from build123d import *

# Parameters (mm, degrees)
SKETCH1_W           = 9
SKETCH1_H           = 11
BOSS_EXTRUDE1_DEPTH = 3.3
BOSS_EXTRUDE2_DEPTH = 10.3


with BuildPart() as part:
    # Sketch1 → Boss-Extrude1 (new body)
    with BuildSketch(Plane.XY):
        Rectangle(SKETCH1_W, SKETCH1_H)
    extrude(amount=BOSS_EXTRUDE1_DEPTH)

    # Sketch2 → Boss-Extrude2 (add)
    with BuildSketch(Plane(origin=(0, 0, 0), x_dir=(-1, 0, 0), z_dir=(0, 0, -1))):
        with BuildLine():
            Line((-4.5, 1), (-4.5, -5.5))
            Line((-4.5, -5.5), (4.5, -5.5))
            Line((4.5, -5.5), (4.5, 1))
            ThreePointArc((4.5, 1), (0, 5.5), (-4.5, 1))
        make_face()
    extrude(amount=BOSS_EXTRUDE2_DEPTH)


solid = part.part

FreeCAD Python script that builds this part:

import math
import FreeCAD as App
import Part
import Sketcher

doc = App.newDocument("Part")
body = doc.addObject("PartDesign::Body", "Body")

# Sketch on XY plane
sketch1 = body.newObject("Sketcher::SketchObject", "Sketch")
sketch1.AttachmentSupport = (doc.getObject("XY_Plane"), [""])
sketch1.MapMode = "FlatFace"
sketch1.addGeometry(Part.LineSegment(App.Vector(-4, 6, 0), App.Vector(-4, -6, 0)), False)
sketch1.addGeometry(Part.LineSegment(App.Vector(-4, -6, 0), App.Vector(4, -6, 0)), False)
sketch1.addGeometry(Part.LineSegment(App.Vector(4, -6, 0), App.Vector(4, 6, 0)), False)
sketch1.addGeometry(Part.LineSegment(App.Vector(4, 6, 0), App.Vector(-4, 6, 0)), False)
sketch1.addConstraint(Sketcher.Constraint("Coincident", 0, 2, 1, 1))
sketch1.addConstraint(Sketcher.Constraint("Coincident", 1, 2, 2, 1))
sketch1.addConstraint(Sketcher.Constraint("Coincident", 2, 2, 3, 1))
sketch1.addConstraint(Sketcher.Constraint("Coincident", 3, 2, 0, 1))
sketch1.addConstraint(Sketcher.Constraint("Vertical", 0))
sketch1.addConstraint(Sketcher.Constraint("Horizontal", 1))
sketch1.addConstraint(Sketcher.Constraint("Vertical", 2))
sketch1.addConstraint(Sketcher.Constraint("Horizontal", 3))
sketch1.addConstraint(Sketcher.Constraint("Symmetric", 0, 2, 2, 2, -1, 1))
sketch1.addConstraint(Sketcher.Constraint("DistanceX", 1, 1, 1, 2, 9.0))
sketch1.addConstraint(Sketcher.Constraint("DistanceY", 0, 2, 0, 1, 11.0))
pad1 = body.newObject("PartDesign::Pad", "Pad")
pad1.Profile = sketch1
pad1.Length = 3.3

# Sketch on XY plane
sketch2 = body.newObject("Sketcher::SketchObject", "Sketch001")
sketch2.AttachmentSupport = (doc.getObject("XY_Plane"), [""])
sketch2.MapMode = "FlatFace"
sketch2.addGeometry(Part.LineSegment(App.Vector(4.5, 1, 0), App.Vector(4.5, -5.5, 0)), False)
sketch2.addGeometry(Part.LineSegment(App.Vector(4.5, -5.5, 0), App.Vector(-4.5, -5.5, 0)), False)
sketch2.addGeometry(Part.LineSegment(App.Vector(-4.5, -5.5, 0), App.Vector(-4.5, 1, 0)), False)
sketch2.addGeometry(Part.ArcOfCircle(Part.Circle(App.Vector(0, 1, 0), App.Vector(0, 0, 1), 4.5), math.radians(0), math.radians(180)), False)
sketch2.addConstraint(Sketcher.Constraint("Coincident", 0, 2, 1, 1))
sketch2.addConstraint(Sketcher.Constraint("Coincident", 1, 2, 2, 1))
sketch2.addConstraint(Sketcher.Constraint("Tangent", 2, 2, 3, 2))
sketch2.addConstraint(Sketcher.Constraint("Tangent", 3, 1, 0, 1))
sketch2.addConstraint(Sketcher.Constraint("Vertical", 0))
sketch2.addConstraint(Sketcher.Constraint("Horizontal", 1))
sketch2.addConstraint(Sketcher.Constraint("Vertical", 2))
sketch2.addConstraint(Sketcher.Constraint("PointOnObject", 3, 3, -2))
sketch2.addConstraint(Sketcher.Constraint("Radius", 3, 4.5))
sketch2.addConstraint(Sketcher.Constraint("DistanceY", 0, 2, 0, 1, 6.5))
sketch2.addConstraint(Sketcher.Constraint("DistanceY", -1, 1, 3, 3, 1.0))
pad2 = body.newObject("PartDesign::Pad", "Pad001")
pad2.Profile = sketch2
pad2.Length = 10.3
pad2.Reversed = True

doc.recompute()
